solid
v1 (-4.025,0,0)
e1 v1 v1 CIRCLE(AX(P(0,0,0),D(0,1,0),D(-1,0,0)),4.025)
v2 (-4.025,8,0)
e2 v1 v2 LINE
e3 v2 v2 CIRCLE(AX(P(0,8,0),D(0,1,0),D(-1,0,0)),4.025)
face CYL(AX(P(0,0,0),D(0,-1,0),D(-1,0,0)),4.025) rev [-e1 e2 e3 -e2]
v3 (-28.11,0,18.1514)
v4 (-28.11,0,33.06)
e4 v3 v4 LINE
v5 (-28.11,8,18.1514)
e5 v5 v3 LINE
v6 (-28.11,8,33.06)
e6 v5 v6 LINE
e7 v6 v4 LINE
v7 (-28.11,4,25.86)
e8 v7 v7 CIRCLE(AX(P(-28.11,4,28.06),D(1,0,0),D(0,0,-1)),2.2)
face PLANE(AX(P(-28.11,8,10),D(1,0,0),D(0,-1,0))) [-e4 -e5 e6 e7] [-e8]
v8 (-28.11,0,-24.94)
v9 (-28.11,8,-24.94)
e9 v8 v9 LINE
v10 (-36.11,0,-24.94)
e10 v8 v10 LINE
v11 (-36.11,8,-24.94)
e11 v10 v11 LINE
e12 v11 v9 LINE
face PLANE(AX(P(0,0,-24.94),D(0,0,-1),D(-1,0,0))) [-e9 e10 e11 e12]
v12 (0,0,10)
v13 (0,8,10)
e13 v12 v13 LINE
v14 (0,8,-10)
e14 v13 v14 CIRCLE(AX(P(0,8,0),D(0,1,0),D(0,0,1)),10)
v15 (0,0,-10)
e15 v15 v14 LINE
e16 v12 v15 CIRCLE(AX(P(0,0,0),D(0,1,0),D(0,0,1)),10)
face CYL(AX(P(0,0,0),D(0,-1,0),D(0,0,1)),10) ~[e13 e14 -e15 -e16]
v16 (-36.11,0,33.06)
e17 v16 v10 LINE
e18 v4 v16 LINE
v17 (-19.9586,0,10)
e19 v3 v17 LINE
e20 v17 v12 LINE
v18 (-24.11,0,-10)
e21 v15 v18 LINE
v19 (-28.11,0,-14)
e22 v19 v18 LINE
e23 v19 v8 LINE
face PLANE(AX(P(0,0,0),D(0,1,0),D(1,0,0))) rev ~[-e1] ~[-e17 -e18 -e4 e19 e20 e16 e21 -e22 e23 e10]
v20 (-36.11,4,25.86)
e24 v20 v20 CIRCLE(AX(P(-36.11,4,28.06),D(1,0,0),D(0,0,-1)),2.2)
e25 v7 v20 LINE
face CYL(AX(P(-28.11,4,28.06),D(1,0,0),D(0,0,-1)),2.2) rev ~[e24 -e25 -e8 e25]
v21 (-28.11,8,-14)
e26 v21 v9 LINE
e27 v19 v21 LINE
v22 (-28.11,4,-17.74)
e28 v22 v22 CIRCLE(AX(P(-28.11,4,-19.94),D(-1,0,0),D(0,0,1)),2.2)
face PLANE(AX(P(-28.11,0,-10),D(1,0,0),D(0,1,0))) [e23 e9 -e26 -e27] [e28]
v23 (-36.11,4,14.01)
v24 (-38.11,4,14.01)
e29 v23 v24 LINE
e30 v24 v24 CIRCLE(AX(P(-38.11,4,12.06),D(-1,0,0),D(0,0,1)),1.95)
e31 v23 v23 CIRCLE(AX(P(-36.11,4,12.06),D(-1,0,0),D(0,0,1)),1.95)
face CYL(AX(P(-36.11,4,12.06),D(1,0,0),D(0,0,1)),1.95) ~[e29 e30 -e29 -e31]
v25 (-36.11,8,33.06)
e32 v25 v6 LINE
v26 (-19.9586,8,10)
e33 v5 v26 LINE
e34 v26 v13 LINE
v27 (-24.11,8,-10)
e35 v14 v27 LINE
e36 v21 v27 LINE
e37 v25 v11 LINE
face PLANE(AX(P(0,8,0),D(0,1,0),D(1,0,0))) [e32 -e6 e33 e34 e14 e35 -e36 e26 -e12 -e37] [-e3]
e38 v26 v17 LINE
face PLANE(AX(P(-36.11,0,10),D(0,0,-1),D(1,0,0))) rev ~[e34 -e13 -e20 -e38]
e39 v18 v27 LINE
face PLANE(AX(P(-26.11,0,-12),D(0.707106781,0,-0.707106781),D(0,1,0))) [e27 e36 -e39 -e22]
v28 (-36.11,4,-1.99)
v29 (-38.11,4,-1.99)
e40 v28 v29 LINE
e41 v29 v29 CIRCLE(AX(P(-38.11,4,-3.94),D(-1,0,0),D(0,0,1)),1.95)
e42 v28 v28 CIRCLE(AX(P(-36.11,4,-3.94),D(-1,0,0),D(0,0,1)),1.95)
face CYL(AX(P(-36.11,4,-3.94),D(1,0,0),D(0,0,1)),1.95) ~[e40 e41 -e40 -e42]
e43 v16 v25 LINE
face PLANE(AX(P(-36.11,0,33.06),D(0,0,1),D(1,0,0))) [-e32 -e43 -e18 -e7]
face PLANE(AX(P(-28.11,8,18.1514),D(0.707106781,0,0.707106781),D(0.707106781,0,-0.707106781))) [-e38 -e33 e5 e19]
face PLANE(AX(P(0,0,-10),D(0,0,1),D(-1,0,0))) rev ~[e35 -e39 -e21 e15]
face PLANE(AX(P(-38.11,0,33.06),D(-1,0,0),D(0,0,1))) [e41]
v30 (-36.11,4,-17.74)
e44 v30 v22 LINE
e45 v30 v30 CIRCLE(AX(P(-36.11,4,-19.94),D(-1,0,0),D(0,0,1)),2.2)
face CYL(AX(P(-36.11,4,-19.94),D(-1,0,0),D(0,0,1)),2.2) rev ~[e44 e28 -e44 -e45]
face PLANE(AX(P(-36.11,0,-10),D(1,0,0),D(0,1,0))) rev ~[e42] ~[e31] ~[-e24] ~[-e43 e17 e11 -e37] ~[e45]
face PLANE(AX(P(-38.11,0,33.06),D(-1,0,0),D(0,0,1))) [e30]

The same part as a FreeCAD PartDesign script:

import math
import FreeCAD as App
import Part
import Sketcher
from FreeCAD import Vector


def edges_at(feature, points):
    """Names of the edges that pass closest to the given points."""
    edges = feature.Shape.Edges
    near = lambda p: min(range(len(edges)), key=lambda i: edges[i].distToShape(Part.Vertex(*p))[0])
    return sorted({f"Edge{near(p) + 1}" for p in points})

doc = App.newDocument("Part")
params = doc.addObject("Spreadsheet::Sheet", "Params")
for row, (alias, value) in enumerate([
    ("sketch1_diameter", "8.05 mm"),
    ("sketch1_radius", "10 mm"),
    ("sketch1_width", "36.11 mm"),
    ("pad1_length", "8 mm"),
    ("sketch2_width", "8 mm"),
    ("pad2_length", "23.06 mm"),
    ("sketch3_diameter", "4.4 mm"),
    ("pocket1_length", "23.06 mm"),
    ("sketch4_width", "8 mm"),
    ("pad3_length", "14.94 mm"),
    ("sketch5_diameter", "3.9 mm"),
    ("pad4_length", "2 mm"),
    ("sketch6_diameter", "4.4 mm"),
    ("pocket2_length", "13 mm"),
    ("pad5_length", "8 mm"),
    ("chamfer_size", "4 mm"),
], start=1):
    params.set(f"A{row}", alias)
    params.set(f"B{row}", "=" + value)
    params.setAlias(f"B{row}", alias)

body = doc.addObject("PartDesign::Body", "Body")

# Sketch on XZ plane
sketch1 = body.newObject("Sketcher::SketchObject", "Sketch")
sketch1.AttachmentSupport = (doc.getObject("XZ_Plane"), [""])
sketch1.MapMode = "FlatFace"
sketch1.addGeometry([
    Part.ArcOfCircle(Part.Circle(Vector(0, 0, 0), Vector(0, 0, 1), 10), math.radians(-90), math.radians(90)),  # 0
    Part.LineSegment(Vector(0, -10, 0), Vector(-36.1, -10, 0)),  # 1
    Part.LineSegment(Vector(-36.1, -10, 0), Vector(-36.1, 10, 0)),  # 2
    Part.LineSegment(Vector(-36.1, 10, 0), Vector(0, 10, 0)),  # 3
    Part.Circle(Vector(0, 0, 0), Vector(0, 0, 1), 4),  # 4
], False)
sketch1.addConstraint([
    Sketcher.Constraint("Tangent", 0, 1, 1, 1),
    Sketcher.Constraint("Coincident", 1, 2, 2, 1),
    Sketcher.Constraint("Coincident", 2, 2, 3, 1),
    Sketcher.Constraint("Tangent", 3, 2, 0, 2),
    Sketcher.Constraint("Horizontal", 1),
    Sketcher.Constraint("Vertical", 2),
    Sketcher.Constraint("Horizontal", 3),
    Sketcher.Constraint("Coincident", 0, 3, -1, 1),
    Sketcher.Constraint("Coincident", 4, 3, -1, 1),
    Sketcher.Constraint("Diameter", 4, 8.05),
    Sketcher.Constraint("Radius", 0, 10.0),
    Sketcher.Constraint("DistanceX", 1, 2, 1, 1, 36.11),
])
sketch1.setExpression("Constraints[9]", "Params.sketch1_diameter")
sketch1.setExpression("Constraints[10]", "Params.sketch1_radius")
sketch1.setExpression("Constraints[11]", "Params.sketch1_width")
pad1 = body.newObject("PartDesign::Pad", "Pad")
pad1.Profile = sketch1
pad1.setExpression("Length", "Params.pad1_length")
pad1.Reversed = True

# Sketch on XY plane
sketch2 = body.newObject("Sketcher::SketchObject", "Sketch001")
sketch2.AttachmentSupport = (doc.getObject("XY_Plane"), [""])
sketch2.MapMode = "FlatFace"
sketch2.AttachmentOffset = App.Placement(Vector(0, 0, 10), App.Rotation())
sketch2.addGeometry([
    Part.LineSegment(Vector(-36, 8, 0), Vector(-36, 0, 0)),
    Part.LineSegment(Vector(-36, 0, 0), Vector(-28, 0, 0)),
    Part.LineSegment(Vector(-28, 0, 0), Vector(-28, 8, 0)),
    Part.LineSegment(Vector(-28, 8, 0), Vector(-36, 8, 0)),
], False)
sketch2.addConstraint([
    Sketcher.Constraint("Coincident", 0, 2, 1, 1),
    Sketcher.Constraint("Coincident", 1, 2, 2, 1),
    Sketcher.Constraint("Coincident", 2, 2, 3, 1),
    Sketcher.Constraint("Coincident", 3, 2, 0, 1),
    Sketcher.Constraint("Vertical", 0),
    Sketcher.Constraint("Horizontal", 1),
    Sketcher.Constraint("Vertical", 2),
    Sketcher.Constraint("Horizontal", 3),
    Sketcher.Constraint("PointOnObject", 0, 2, -1),
    Sketcher.Constraint("Equal", 3, 0),
    Sketcher.Constraint("DistanceX", 1, 1, 1, 2, 8.0),
    Sketcher.Constraint("DistanceX", 0, 2, -1, 1, 36.11),
])
sketch2.setExpression("Constraints[10]", "Params.sketch2_width")
pad2 = body.newObject("PartDesign::Pad", "Pad001")
pad2.Profile = sketch2
pad2.setExpression("Length", "Params.pad2_length")

# Sketch on YZ plane
sketch3 = body.newObject("Sketcher::SketchObject", "Sketch002")
sketch3.AttachmentSupport = (doc.getObject("YZ_Plane"), [""])
sketch3.MapMode = "FlatFace"
sketch3.AttachmentOffset = App.Placement(Vector(0, 0, -28.11), App.Rotation())
sketch3.addGeometry(Part.Circle(Vector(4, 28.1, 0), Vector(0, 0, 1), 2.2), False)
sketch3.addConstraint([
    Sketcher.Constraint("Diameter", 0, 4.4),
    Sketcher.Constraint("DistanceX", -1, 1, 0, 3, 4.0),
    Sketcher.Constraint("DistanceY", -1, 1, 0, 3, 28.06),
])
sketch3.setExpression("Constraints[0]", "Params.sketch3_diameter")
pocket1 = body.newObject("PartDesign::Pocket", "Pocket")
pocket1.Profile = sketch3
pocket1.setExpression("Length", "Params.pocket1_length")

# Sketch on XY plane
sketch4 = body.newObject("Sketcher::SketchObject", "Sketch003")
sketch4.AttachmentSupport = (doc.getObject("XY_Plane"), [""])
sketch4.MapMode = "FlatFace"
sketch4.AttachmentOffset = App.Placement(Vector(0, 0, -10), App.Rotation())
sketch4.addGeometry([
    Part.LineSegment(Vector(-28, 0, 0), Vector(-36, 0, 0)),
    Part.LineSegment(Vector(-36, 0, 0), Vector(-36, 8, 0)),
    Part.LineSegment(Vector(-36, 8, 0), Vector(-28, 8, 0)),
    Part.LineSegment(Vector(-28, 8, 0), Vector(-28, 0, 0)),
], False)
sketch4.addConstraint([
    Sketcher.Constraint("Coincident", 0, 2, 1, 1),
    Sketcher.Constraint("Coincident", 1, 2, 2, 1),
    Sketcher.Constraint("Coincident", 2, 2, 3, 1),
    Sketcher.Constraint("Coincident", 3, 2, 0, 1),
    Sketcher.Constraint("Horizontal", 0),
    Sketcher.Constraint("Vertical", 1),
    Sketcher.Constraint("Horizontal", 2),
    Sketcher.Constraint("Vertical", 3),
    Sketcher.Constraint("PointOnObject", 0, 2, -1),
    Sketcher.Constraint("Equal", 2, 1),
    Sketcher.Constraint("DistanceX", 0, 2, 0, 1, 8.0),
    Sketcher.Constraint("DistanceX", 0, 2, -1, 1, 36.11),
])
sketch4.setExpression("Constraints[10]", "Params.sketch4_width")
pad3 = body.newObject("PartDesign::Pad", "Pad002")
pad3.Profile = sketch4
pad3.setExpression("Length", "Params.pad3_length")
pad3.Reversed = True

# Sketch on YZ plane
sketch5 = body.newObject("Sketcher::SketchObject", "Sketch004")
sketch5.AttachmentSupport = (doc.getObject("YZ_Plane"), [""])
sketch5.MapMode = "FlatFace"
sketch5.AttachmentOffset = App.Placement(Vector(0, 0, -36.11), App.Rotation())
sketch5.addGeometry([
    Part.Circle(Vector(4, 12.1, 0), Vector(0, 0, 1), 1.9),
    Part.Circle(Vector(4, -3.9, 0), Vector(0, 0, 1), 1.9),
], False)
sketch5.addConstraint([
    Sketcher.Constraint("Equal", 0, 1),
    Sketcher.Constraint("Vertical", 0, 3, 1, 3),
    Sketcher.Constraint("Diameter", 0, 3.9),
    Sketcher.Constraint("DistanceY", 1, 3, 0, 3, 16.0),
    Sketcher.Constraint("DistanceX", -1, 1, 0, 3, 4.0),
    Sketcher.Constraint("DistanceY", -1, 1, 0, 3, 12.06),
])
sketch5.setExpression("Constraints[2]", "Params.sketch5_diameter")
pad4 = body.newObject("PartDesign::Pad", "Pad003")
pad4.Profile = sketch5
pad4.setExpression("Length", "Params.pad4_length")
pad4.Reversed = True

# Sketch on YZ plane
sketch6 = body.newObject("Sketcher::SketchObject", "Sketch005")
sketch6.AttachmentSupport = (doc.getObject("YZ_Plane"), [""])
sketch6.MapMode = "FlatFace"
sketch6.AttachmentOffset = App.Placement(Vector(0, 0, -36.11), App.Rotation())
sketch6.addGeometry(Part.Circle(Vector(4, -19.9, 0), Vector(0, 0, 1), 2.2), False)
sketch6.addConstraint([
    Sketcher.Constraint("Diameter", 0, 4.4),
    Sketcher.Constraint("DistanceX", -1, 1, 0, 3, 4.0),
    Sketcher.Constraint("DistanceY", 0, 3, -1, 1, 19.94),
])
sketch6.setExpression("Constraints[0]", "Params.sketch6_diameter")
pocket2 = body.newObject("PartDesign::Pocket", "Pocket001")
pocket2.Profile = sketch6
pocket2.setExpression("Length", "Params.pocket2_length")
pocket2.Reversed = True

# Sketch on XZ plane
sketch7 = body.newObject("Sketcher::SketchObject", "Sketch006")
sketch7.AttachmentSupport = (doc.getObject("XZ_Plane"), [""])
sketch7.MapMode = "FlatFace"
sketch7.AttachmentOffset = App.Placement(Vector(0, 0, -8), App.Rotation())
sketch7.addGeometry([
    Part.LineSegment(Vector(-28, 10, 0), Vector(-28, 18, 0)),
    Part.LineSegment(Vector(-28, 18, 0), Vector(-20, 10, 0)),
    Part.LineSegment(Vector(-20, 10, 0), Vector(-28, 10, 0)),
], False)
sketch7.addConstraint([
    Sketcher.Constraint("Coincident", 0, 2, 1, 1),
    Sketcher.Constraint("Coincident", 1, 2, 2, 1),
    Sketcher.Constraint("Coincident", 2, 2, 0, 1),
    Sketcher.Constraint("Vertical", 0),
    Sketcher.Constraint("Horizontal", 2),
    Sketcher.Constraint("Equal", 2, 0),
    Sketcher.Constraint("DistanceY", -1, 1, 1, 2, 10.0),
    Sketcher.Constraint("DistanceX", 0, 2, -1, 1, 28.11),
    Sketcher.Constraint("DistanceX", 2, 2, 2, 1, 8.1514),
])
pad5 = body.newObject("PartDesign::Pad", "Pad004")
pad5.Profile = sketch7
pad5.setExpression("Length", "Params.pad5_length")
doc.recompute()

chamfer = body.newObject("PartDesign::Chamfer", "Chamfer")
chamfer.Base = (pad5, edges_at(pad5, [(-28.11, 4, -10)]))
chamfer.setExpression("Size", "Params.chamfer_size")

doc.recompute()
